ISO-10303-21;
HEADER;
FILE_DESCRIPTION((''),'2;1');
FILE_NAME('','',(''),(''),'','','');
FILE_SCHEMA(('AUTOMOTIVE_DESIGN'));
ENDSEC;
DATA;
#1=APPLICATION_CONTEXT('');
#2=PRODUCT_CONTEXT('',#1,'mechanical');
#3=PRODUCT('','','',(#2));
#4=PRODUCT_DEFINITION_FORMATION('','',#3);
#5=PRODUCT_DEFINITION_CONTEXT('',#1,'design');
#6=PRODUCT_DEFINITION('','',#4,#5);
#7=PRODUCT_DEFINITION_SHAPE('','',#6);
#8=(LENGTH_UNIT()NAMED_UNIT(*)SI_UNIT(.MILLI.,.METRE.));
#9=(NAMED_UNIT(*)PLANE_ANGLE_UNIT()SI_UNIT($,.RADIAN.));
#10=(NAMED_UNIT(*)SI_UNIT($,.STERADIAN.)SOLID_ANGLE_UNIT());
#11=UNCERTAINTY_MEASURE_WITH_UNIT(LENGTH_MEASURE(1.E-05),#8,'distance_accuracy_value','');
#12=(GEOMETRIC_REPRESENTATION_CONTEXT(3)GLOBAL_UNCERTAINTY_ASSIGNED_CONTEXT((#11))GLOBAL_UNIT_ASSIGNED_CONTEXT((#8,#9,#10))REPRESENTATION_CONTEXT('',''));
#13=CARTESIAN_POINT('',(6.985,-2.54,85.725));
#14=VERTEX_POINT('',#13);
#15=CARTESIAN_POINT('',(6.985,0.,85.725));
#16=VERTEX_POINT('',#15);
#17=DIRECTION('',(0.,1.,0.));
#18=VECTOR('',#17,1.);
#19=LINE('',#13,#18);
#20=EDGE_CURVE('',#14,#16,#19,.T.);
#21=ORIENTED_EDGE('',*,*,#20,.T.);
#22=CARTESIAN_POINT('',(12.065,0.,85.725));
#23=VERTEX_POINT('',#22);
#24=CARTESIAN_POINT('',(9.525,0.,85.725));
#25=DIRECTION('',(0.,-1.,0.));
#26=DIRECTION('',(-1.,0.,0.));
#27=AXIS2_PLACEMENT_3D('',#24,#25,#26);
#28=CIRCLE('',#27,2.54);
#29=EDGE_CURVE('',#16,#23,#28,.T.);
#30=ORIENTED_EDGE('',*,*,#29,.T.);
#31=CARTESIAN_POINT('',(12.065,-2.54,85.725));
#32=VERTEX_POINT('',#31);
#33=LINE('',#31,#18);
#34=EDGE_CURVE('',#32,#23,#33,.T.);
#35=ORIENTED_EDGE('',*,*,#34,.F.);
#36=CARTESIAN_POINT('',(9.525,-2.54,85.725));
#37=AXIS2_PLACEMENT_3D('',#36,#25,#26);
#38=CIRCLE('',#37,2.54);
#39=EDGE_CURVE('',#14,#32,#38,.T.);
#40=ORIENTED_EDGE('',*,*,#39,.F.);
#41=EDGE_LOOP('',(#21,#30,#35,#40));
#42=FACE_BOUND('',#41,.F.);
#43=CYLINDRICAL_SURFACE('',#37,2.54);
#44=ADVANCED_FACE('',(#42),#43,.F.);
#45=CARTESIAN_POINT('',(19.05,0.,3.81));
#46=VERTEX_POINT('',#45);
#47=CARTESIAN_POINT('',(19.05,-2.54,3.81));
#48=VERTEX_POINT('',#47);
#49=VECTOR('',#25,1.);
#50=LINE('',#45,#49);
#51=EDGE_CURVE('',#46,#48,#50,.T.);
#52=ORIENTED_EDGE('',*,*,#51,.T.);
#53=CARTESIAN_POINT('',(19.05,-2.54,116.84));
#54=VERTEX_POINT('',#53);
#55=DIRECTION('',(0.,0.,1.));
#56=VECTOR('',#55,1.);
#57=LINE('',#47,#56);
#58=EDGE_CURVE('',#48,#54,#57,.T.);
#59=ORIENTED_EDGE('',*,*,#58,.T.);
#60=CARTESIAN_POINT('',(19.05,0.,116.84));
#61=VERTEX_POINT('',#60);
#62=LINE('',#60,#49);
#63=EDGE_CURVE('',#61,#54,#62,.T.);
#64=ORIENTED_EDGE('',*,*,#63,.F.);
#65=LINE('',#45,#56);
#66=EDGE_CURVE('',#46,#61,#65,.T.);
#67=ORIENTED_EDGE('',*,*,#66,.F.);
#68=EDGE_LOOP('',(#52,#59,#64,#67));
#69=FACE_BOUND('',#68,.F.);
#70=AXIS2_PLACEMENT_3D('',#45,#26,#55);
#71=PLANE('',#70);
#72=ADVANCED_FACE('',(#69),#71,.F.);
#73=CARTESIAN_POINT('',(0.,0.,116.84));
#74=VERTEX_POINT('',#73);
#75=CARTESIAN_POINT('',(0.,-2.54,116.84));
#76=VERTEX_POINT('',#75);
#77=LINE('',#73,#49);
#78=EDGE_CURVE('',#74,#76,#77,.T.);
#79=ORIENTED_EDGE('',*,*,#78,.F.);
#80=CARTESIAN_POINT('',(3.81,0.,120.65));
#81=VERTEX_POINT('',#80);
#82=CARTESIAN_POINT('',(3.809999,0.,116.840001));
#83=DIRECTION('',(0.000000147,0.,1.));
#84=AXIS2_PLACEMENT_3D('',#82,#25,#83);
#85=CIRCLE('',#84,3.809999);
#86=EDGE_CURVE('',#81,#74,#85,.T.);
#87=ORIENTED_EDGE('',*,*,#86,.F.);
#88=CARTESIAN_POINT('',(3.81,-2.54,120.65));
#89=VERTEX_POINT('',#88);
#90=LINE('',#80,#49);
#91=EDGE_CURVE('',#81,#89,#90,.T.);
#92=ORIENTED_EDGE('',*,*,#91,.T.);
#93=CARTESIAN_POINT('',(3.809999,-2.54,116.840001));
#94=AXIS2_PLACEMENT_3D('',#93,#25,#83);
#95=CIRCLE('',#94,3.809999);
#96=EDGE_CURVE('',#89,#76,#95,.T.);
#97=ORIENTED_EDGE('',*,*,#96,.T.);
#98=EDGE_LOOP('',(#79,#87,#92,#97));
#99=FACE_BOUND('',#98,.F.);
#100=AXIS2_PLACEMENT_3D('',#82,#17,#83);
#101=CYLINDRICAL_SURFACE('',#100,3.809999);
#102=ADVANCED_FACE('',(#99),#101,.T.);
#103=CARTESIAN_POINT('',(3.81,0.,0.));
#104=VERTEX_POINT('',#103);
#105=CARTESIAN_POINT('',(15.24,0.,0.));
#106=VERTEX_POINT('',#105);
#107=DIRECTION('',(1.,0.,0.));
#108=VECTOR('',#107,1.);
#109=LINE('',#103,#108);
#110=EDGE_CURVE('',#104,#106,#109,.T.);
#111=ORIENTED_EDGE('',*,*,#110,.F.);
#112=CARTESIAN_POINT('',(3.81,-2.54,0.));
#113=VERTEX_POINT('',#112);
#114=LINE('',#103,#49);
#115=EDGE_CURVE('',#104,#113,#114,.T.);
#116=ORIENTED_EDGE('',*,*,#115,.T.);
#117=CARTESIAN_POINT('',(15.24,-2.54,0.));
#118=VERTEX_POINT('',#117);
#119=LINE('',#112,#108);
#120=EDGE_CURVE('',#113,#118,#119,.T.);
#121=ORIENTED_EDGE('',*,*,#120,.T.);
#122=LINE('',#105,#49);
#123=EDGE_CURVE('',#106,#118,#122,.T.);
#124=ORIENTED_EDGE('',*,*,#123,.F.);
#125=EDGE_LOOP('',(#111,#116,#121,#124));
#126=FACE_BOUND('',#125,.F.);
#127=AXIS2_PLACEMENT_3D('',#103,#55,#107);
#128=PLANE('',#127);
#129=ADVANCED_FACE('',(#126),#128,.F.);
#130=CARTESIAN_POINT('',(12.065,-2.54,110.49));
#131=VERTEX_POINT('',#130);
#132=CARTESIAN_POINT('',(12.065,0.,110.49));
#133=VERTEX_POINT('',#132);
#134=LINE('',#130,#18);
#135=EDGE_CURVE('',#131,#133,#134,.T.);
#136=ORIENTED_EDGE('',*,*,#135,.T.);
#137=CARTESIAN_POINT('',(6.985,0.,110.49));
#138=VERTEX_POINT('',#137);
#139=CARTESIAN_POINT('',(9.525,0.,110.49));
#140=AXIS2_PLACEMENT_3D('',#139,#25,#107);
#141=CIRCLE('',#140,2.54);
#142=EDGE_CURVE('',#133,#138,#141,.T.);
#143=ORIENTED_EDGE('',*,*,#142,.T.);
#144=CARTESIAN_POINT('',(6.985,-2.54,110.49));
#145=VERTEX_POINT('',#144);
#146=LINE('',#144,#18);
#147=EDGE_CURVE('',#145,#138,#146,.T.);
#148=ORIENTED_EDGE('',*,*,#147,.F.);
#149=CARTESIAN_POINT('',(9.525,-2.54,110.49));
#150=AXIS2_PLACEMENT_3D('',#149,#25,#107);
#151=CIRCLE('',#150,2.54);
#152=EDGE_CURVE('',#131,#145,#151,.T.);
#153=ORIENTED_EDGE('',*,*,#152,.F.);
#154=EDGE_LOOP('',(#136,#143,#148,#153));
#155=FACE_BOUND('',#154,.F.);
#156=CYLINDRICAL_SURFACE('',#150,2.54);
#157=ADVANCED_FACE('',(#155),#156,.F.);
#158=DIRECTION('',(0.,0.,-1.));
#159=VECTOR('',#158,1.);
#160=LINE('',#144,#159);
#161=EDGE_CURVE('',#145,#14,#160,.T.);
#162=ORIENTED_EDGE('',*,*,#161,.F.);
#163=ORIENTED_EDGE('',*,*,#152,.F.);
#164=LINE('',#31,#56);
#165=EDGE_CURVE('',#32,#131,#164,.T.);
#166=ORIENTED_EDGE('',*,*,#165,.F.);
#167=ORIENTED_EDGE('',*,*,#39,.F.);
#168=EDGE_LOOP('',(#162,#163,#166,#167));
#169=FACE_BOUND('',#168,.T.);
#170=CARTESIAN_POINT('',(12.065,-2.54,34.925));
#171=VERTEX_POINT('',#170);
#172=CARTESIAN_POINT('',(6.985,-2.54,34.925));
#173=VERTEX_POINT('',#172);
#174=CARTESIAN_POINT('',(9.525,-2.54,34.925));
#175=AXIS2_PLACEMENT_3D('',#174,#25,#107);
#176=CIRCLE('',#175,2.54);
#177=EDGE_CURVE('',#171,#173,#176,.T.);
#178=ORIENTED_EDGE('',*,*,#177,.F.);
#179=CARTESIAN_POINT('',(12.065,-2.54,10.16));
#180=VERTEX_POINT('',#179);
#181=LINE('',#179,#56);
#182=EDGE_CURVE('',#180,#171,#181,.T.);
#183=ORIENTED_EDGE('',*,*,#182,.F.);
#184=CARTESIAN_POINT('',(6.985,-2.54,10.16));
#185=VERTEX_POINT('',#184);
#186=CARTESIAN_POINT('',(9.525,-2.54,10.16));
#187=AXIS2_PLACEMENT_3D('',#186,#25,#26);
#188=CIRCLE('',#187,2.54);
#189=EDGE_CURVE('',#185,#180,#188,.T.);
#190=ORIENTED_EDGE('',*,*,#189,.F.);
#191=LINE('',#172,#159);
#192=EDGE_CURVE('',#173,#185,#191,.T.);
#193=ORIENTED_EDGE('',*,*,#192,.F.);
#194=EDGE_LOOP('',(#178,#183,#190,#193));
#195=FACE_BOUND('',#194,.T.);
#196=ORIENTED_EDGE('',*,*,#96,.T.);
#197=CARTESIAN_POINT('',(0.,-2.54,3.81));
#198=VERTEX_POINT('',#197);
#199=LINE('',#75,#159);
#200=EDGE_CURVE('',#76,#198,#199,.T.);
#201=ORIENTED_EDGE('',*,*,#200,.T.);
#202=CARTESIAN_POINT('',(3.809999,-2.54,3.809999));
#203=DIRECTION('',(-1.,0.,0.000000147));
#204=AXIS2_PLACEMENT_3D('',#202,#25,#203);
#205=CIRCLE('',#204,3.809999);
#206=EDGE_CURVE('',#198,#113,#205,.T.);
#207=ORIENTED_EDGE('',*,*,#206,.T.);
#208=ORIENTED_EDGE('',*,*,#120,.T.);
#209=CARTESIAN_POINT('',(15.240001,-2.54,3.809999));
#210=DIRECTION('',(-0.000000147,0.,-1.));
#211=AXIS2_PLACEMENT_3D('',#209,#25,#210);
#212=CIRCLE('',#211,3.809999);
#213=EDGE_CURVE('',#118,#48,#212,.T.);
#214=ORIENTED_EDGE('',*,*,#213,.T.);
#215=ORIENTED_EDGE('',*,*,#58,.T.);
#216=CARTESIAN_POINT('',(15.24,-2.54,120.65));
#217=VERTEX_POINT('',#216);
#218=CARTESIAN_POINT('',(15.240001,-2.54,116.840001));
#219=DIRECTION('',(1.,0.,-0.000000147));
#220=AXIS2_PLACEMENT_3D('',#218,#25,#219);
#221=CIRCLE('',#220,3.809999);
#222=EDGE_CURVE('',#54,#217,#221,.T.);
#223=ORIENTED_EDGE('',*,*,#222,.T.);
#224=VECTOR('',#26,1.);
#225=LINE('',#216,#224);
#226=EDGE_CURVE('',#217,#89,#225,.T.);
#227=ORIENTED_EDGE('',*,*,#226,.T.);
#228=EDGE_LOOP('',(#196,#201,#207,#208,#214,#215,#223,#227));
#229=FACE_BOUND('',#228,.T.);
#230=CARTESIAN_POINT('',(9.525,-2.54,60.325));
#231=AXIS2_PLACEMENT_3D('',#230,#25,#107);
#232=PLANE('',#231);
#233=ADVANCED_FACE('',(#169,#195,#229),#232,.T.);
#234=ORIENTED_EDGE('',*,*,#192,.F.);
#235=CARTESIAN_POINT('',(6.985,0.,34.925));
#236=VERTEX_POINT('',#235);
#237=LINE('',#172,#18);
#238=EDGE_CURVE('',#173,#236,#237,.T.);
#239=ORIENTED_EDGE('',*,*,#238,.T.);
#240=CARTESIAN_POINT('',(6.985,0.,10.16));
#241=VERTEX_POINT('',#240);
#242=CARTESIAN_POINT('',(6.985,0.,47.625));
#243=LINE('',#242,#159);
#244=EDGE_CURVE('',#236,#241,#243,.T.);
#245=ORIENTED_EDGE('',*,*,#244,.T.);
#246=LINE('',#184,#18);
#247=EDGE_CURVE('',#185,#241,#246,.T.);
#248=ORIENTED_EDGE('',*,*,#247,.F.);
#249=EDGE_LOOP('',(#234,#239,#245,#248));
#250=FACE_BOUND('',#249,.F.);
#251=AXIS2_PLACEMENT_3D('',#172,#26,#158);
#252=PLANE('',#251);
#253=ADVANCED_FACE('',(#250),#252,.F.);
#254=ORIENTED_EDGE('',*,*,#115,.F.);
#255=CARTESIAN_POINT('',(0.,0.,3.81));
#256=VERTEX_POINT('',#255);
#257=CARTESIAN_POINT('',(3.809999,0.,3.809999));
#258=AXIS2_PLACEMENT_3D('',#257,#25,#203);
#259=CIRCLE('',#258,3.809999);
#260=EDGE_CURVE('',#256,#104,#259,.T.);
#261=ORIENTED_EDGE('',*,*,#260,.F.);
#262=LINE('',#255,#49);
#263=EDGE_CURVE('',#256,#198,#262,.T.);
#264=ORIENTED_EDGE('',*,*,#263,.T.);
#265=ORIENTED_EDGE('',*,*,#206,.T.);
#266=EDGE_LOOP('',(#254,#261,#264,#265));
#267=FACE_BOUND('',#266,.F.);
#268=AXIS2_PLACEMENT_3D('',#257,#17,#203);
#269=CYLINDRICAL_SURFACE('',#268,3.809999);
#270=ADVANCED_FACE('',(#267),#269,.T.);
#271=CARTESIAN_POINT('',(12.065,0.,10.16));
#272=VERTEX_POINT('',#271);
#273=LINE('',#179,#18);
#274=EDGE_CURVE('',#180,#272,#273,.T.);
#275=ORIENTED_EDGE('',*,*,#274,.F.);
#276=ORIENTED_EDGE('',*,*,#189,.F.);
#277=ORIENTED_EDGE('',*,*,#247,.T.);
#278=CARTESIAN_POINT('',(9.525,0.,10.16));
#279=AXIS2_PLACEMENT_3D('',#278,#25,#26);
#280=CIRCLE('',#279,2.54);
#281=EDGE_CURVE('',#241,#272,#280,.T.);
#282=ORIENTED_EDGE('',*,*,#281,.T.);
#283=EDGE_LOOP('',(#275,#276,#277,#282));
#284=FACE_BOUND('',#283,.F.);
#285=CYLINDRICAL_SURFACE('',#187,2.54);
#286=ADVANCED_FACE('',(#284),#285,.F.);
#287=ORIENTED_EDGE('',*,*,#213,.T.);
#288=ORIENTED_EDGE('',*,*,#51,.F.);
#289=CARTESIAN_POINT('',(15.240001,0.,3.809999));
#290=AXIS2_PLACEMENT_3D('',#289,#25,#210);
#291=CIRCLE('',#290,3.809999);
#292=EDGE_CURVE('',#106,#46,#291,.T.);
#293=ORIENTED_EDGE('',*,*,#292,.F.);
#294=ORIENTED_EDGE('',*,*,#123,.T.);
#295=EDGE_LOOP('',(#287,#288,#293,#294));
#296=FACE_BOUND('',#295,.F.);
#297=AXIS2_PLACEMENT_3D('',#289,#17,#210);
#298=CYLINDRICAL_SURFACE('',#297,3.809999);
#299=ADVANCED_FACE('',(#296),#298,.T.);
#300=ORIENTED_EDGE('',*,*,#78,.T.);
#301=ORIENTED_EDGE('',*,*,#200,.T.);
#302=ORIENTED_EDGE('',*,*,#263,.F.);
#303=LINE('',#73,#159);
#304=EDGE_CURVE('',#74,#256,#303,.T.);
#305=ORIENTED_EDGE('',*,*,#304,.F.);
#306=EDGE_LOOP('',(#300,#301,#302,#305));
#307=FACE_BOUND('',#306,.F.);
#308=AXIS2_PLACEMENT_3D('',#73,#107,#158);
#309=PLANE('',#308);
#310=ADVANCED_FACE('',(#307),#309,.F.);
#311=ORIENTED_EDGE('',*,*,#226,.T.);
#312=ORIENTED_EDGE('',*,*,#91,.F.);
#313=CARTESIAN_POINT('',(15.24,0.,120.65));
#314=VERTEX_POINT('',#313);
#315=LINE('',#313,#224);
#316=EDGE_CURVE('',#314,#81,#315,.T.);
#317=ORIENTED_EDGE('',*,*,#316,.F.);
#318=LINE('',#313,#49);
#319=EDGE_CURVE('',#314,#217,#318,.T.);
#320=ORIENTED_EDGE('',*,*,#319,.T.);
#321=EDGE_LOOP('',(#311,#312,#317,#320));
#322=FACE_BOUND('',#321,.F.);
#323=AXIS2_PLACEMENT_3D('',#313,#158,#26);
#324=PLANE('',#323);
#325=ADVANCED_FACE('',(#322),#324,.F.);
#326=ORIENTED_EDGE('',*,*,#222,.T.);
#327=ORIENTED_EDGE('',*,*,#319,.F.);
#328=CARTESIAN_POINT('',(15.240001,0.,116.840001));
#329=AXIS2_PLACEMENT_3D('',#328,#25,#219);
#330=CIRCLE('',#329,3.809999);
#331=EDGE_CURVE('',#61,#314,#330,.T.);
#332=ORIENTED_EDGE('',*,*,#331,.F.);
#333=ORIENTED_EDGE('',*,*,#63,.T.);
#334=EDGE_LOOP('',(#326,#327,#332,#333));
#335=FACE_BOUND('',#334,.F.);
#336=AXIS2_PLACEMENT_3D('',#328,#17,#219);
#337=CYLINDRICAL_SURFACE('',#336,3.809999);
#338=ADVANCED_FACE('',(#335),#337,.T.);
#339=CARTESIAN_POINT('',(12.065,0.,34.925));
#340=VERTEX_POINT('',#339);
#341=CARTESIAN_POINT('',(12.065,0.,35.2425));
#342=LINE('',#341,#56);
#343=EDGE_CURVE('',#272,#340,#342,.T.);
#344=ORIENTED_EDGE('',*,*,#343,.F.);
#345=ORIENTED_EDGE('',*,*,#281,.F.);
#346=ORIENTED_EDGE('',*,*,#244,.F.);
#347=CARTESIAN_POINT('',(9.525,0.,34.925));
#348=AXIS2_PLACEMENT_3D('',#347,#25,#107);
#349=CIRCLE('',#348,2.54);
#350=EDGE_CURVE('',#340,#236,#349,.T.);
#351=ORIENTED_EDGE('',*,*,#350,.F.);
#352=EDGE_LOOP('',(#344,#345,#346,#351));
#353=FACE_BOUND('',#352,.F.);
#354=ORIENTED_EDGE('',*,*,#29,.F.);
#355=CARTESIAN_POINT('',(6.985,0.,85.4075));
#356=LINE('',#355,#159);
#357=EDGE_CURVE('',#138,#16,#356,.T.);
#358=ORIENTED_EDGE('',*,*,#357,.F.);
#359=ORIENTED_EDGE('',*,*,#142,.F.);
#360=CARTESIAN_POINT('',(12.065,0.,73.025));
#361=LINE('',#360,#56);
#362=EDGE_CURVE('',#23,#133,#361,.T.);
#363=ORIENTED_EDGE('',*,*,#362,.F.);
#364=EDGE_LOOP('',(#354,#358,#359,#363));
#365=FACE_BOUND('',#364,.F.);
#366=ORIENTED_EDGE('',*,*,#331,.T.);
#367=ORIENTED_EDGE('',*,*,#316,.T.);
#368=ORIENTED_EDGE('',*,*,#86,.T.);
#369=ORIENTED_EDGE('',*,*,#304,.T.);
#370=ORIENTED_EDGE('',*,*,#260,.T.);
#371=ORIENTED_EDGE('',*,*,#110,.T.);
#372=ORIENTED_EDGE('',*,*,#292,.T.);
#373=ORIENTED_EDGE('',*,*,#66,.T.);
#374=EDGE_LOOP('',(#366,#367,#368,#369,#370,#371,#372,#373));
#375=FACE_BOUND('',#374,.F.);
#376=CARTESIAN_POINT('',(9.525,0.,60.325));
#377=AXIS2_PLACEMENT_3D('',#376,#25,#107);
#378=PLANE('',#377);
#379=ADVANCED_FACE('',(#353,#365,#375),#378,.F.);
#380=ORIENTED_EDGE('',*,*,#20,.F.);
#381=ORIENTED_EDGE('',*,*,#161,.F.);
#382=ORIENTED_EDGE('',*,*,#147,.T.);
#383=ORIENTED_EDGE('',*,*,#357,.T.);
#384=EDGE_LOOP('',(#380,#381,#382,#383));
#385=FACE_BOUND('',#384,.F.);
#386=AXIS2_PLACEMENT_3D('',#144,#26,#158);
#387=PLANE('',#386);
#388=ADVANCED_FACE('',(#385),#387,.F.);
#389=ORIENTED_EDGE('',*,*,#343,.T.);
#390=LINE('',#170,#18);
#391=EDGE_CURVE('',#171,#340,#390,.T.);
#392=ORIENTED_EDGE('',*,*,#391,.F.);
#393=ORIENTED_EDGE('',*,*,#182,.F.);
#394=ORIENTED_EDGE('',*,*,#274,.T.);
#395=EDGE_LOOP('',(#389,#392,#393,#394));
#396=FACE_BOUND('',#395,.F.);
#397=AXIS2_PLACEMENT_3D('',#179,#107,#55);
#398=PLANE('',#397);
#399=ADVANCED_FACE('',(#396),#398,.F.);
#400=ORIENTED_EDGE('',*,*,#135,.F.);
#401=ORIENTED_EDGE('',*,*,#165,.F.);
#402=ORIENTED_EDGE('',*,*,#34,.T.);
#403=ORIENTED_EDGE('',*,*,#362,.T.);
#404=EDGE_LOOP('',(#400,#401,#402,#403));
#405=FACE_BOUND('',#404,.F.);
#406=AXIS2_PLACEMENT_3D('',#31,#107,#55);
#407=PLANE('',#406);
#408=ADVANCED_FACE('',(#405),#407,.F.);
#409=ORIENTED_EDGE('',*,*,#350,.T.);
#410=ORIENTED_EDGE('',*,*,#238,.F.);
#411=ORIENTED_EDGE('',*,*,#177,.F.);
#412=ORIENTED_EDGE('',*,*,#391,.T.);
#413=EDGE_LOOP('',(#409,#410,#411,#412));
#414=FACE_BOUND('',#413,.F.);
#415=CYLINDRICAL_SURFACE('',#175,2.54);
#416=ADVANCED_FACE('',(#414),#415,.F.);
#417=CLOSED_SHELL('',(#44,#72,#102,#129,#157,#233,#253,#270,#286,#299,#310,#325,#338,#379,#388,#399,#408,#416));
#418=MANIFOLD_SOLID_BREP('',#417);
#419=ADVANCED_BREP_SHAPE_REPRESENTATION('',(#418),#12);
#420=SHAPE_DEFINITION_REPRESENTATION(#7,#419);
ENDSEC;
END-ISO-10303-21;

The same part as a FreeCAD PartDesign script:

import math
import FreeCAD as App
import Part
import Sketcher
Q = App.Units.Quantity

doc = App.newDocument("Part")
body = doc.addObject("PartDesign::Body", "Body")

# Sketch on XZ plane
sketch1 = body.newObject("Sketcher::SketchObject", "Sketch")
sketch1.AttachmentSupport = (doc.getObject("XZ_Plane"), [""])
sketch1.MapMode = "FlatFace"
sketch1.addGeometry([
    Part.ArcOfCircle(Part.Circle(App.Vector(3.8, 3.8, 0), App.Vector(0, 0, 1), 3.8), math.radians(180), math.radians(270)),  # 0
    Part.LineSegment(App.Vector(3.8, 0, 0), App.Vector(15.2, 0, 0)),  # 1
    Part.ArcOfCircle(Part.Circle(App.Vector(15.2, 3.8, 0), App.Vector(0, 0, 1), 3.8), math.radians(-90), math.radians(0)),  # 2
    Part.LineSegment(App.Vector(19.1, 3.8, 0), App.Vector(19.1, 116.8, 0)),  # 3
    Part.ArcOfCircle(Part.Circle(App.Vector(15.2, 116.8, 0), App.Vector(0, 0, 1), 3.8), math.radians(0), math.radians(90)),  # 4
    Part.LineSegment(App.Vector(15.2, 120.7, 0), App.Vector(3.8, 120.7, 0)),  # 5
    Part.ArcOfCircle(Part.Circle(App.Vector(3.8, 116.8, 0), App.Vector(0, 0, 1), 3.8), math.radians(90), math.radians(180)),  # 6
    Part.LineSegment(App.Vector(0, 116.8, 0), App.Vector(0, 3.8, 0)),  # 7
], False)
sketch1.addConstraint([
    Sketcher.Constraint("Tangent", 0, 2, 1, 1),
    Sketcher.Constraint("Tangent", 1, 2, 2, 1),
    Sketcher.Constraint("Tangent", 2, 2, 3, 1),
    Sketcher.Constraint("Tangent", 3, 2, 4, 1),
    Sketcher.Constraint("Tangent", 4, 2, 5, 1),
    Sketcher.Constraint("Tangent", 5, 2, 6, 1),
    Sketcher.Constraint("Tangent", 6, 2, 7, 1),
    Sketcher.Constraint("Tangent", 7, 2, 0, 1),
    Sketcher.Constraint("Horizontal", 1),
    Sketcher.Constraint("Vertical", 3),
    Sketcher.Constraint("Horizontal", 5),
    Sketcher.Constraint("Vertical", 7),
    Sketcher.Constraint("Equal", 0, 2),
    Sketcher.Constraint("Equal", 2, 4),
    Sketcher.Constraint("Equal", 4, 6),
    Sketcher.Constraint("PointOnObject", 0, 2, -1),
    Sketcher.Constraint("PointOnObject", 6, 2, -2),
    Sketcher.Constraint("Radius", 0, Q("0.15 in")),
    Sketcher.Constraint("DistanceX", 1, 1, 1, 2, Q("0.45 in")),
    Sketcher.Constraint("DistanceY", 3, 1, 3, 2, Q("4.45 in")),
])
pad1 = body.newObject("PartDesign::Pad", "Pad")
pad1.Profile = sketch1
pad1.Length = Q("0.1 in")

# Sketch on XZ plane
sketch2 = body.newObject("Sketcher::SketchObject", "Sketch001")
sketch2.AttachmentSupport = (doc.getObject("XZ_Plane"), [""])
sketch2.MapMode = "FlatFace"
sketch2.AttachmentOffset = App.Placement(App.Vector(0, 0, 0.1 * 25.4), App.Rotation())
sketch2.addGeometry([
    Part.ArcOfCircle(Part.Circle(App.Vector(9.5, 110.5, 0), App.Vector(0, 0, 1), 2.5), math.radians(0), math.radians(180)),  # 0
    Part.LineSegment(App.Vector(7, 110.5, 0), App.Vector(7, 85.7, 0)),  # 1
    Part.ArcOfCircle(Part.Circle(App.Vector(9.5, 85.7, 0), App.Vector(0, 0, 1), 2.5), math.radians(180), math.radians(360)),  # 2
    Part.LineSegment(App.Vector(12.1, 85.7, 0), App.Vector(12.1, 110.5, 0)),  # 3
    Part.ArcOfCircle(Part.Circle(App.Vector(9.5, 10.2, 0), App.Vector(0, 0, 1), 2.5), math.radians(180), math.radians(360)),  # 4
    Part.LineSegment(App.Vector(12.1, 10.2, 0), App.Vector(12.1, 34.9, 0)),  # 5
    Part.ArcOfCircle(Part.Circle(App.Vector(9.5, 34.9, 0), App.Vector(0, 0, 1), 2.5), math.radians(0), math.radians(180)),  # 6
    Part.LineSegment(App.Vector(7, 34.9, 0), App.Vector(7, 10.2, 0)),  # 7
], False)
sketch2.addConstraint([
    Sketcher.Constraint("Tangent", 0, 2, 1, 1),
    Sketcher.Constraint("Tangent", 1, 2, 2, 1),
    Sketcher.Constraint("Tangent", 2, 2, 3, 1),
    Sketcher.Constraint("Tangent", 3, 2, 0, 1),
    Sketcher.Constraint("Tangent", 4, 2, 5, 1),
    Sketcher.Constraint("Tangent", 5, 2, 6, 1),
    Sketcher.Constraint("Tangent", 6, 2, 7, 1),
    Sketcher.Constraint("Tangent", 7, 2, 4, 1),
    Sketcher.Constraint("Vertical", 1),
    Sketcher.Constraint("Vertical", 3),
    Sketcher.Constraint("Vertical", 5),
    Sketcher.Constraint("Vertical", 7),
    Sketcher.Constraint("Equal", 2, 4),
    Sketcher.Constraint("Vertical", 2, 3, 4, 3),
    Sketcher.Constraint("Equal", 3, 5),
    Sketcher.Constraint("Radius", 0, Q("0.1 in")),
    Sketcher.Constraint("DistanceY", 6, 3, 2, 3, Q("2 in")),
    Sketcher.Constraint("DistanceY", -1, 1, 4, 3, Q("0.4 in")),
    Sketcher.Constraint("DistanceY", 1, 2, 1, 1, Q("0.975 in")),
    Sketcher.Constraint("DistanceX", -1, 1, 0, 3, Q("0.375 in")),
])
pocket1 = body.newObject("PartDesign::Pocket", "Pocket")
pocket1.Profile = sketch2
pocket1.Type = "ThroughAll"

doc.recompute()
